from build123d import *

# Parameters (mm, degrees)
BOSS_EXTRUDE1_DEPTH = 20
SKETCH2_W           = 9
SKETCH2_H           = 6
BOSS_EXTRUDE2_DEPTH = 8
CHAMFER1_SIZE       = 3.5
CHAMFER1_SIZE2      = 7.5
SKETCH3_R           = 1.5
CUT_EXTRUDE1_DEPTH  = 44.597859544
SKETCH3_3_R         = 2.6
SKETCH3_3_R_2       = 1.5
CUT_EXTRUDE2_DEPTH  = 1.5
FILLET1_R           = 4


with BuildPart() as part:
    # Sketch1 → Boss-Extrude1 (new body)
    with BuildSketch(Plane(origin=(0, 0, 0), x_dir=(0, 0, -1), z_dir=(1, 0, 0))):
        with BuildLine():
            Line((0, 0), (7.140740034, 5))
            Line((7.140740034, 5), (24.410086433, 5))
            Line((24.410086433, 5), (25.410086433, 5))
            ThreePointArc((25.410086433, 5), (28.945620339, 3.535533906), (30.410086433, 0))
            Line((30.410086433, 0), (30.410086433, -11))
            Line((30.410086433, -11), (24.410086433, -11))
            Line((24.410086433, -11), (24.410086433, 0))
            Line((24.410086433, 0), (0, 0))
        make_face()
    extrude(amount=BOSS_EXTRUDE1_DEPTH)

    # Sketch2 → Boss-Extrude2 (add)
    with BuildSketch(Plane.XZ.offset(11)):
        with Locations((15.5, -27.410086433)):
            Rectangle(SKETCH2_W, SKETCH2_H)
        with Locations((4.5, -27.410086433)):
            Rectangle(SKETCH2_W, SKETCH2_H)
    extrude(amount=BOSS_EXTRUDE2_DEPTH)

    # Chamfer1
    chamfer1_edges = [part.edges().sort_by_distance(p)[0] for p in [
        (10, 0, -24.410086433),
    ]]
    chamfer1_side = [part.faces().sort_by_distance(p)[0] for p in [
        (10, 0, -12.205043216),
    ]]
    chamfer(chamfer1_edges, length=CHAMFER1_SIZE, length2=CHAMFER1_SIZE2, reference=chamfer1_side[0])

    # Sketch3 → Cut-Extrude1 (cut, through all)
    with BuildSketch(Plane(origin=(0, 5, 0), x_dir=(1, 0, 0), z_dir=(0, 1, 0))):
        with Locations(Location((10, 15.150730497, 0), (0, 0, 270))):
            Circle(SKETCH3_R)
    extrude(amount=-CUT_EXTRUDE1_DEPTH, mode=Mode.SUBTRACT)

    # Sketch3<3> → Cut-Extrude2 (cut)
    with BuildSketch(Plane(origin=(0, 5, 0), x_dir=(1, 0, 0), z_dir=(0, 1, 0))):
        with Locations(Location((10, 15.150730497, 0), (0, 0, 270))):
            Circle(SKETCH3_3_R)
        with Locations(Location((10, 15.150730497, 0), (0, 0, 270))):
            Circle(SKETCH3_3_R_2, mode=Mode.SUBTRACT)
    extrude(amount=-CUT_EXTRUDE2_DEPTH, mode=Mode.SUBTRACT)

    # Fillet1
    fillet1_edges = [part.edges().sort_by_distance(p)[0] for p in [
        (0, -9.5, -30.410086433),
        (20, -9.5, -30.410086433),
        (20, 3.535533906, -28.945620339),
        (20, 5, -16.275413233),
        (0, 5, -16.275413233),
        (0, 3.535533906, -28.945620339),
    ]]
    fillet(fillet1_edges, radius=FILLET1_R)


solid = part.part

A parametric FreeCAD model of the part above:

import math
import FreeCAD as App
import Part
import Sketcher

V = App.Vector
Q = App.Units.Quantity


def edges_at(feature, points):
    """Names of the edges that pass closest to the given points."""
    edges = feature.Shape.Edges
    near = lambda p: min(range(len(edges)), key=lambda i: edges[i].distToShape(Part.Vertex(*p))[0])
    return sorted({f"Edge{near(p) + 1}" for p in points})


def add_polygon(sketch, points):
    """Adds a closed chain of lines whose ends are joined by coincident constraints."""
    first, n = sketch.GeometryCount, len(points)
    for a, b in zip(points, points[1:] + points[:1]):
        sketch.addGeometry(Part.LineSegment(App.Vector(*a, 0), App.Vector(*b, 0)), False)
    for i in range(n):
        sketch.addConstraint(Sketcher.Constraint("Coincident", first + i, 2, first + (i + 1) % n, 1))

doc = App.newDocument("Part")
body = doc.addObject("PartDesign::Body", "Body")

sketch1 = doc.addObject("Sketcher::SketchObject", "Sketch")
body.addObject(sketch1)
sketch1.AttachmentSupport = (doc.YZ_Plane, [""])
sketch1.MapMode = "FlatFace"
sketch1.addGeometry(Part.LineSegment(V(5, -7, 0), V(0, 0, 0)), False)
sketch1.addGeometry(Part.LineSegment(V(0, 0, 0), V(0, -24, 0)), False)
sketch1.addGeometry(Part.LineSegment(V(0, -24, 0), V(-11, -24, 0)), False)
sketch1.addGeometry(Part.LineSegment(V(-11, -24, 0), V(-11, -30, 0)), False)
sketch1.addGeometry(Part.LineSegment(V(-11, -30, 0), V(0, -30, 0)), False)
sketch1.addGeometry(Part.ArcOfCircle(Part.Circle(V(0, -25, 0), V(0, 0, 1), 5), math.radians(-90), math.radians(0)), False)
sketch1.addGeometry(Part.LineSegment(V(5, -25, 0), V(5, -7, 0)), False)
sketch1.addConstraint(Sketcher.Constraint("Coincident", 0, 2, 1, 1))
sketch1.addConstraint(Sketcher.Constraint("Coincident", 1, 2, 2, 1))
sketch1.addConstraint(Sketcher.Constraint("Coincident", 2, 2, 3, 1))
sketch1.addConstraint(Sketcher.Constraint("Coincident", 3, 2, 4, 1))
sketch1.addConstraint(Sketcher.Constraint("Tangent", 4, 2, 5, 1))
sketch1.addConstraint(Sketcher.Constraint("Tangent", 5, 2, 6, 1))
sketch1.addConstraint(Sketcher.Constraint("Coincident", 6, 2, 0, 1))
sketch1.addConstraint(Sketcher.Constraint("Vertical", 1))
sketch1.addConstraint(Sketcher.Constraint("Horizontal", 2))
sketch1.addConstraint(Sketcher.Constraint("Vertical", 3))
sketch1.addConstraint(Sketcher.Constraint("Horizontal", 4))
sketch1.addConstraint(Sketcher.Constraint("Vertical", 6))
sketch1.addConstraint(Sketcher.Constraint("Coincident", 0, 2, -1, 1))
sketch1.addConstraint(Sketcher.Constraint("PointOnObject", 5, 3, -2))
sketch1.addConstraint(Sketcher.Constraint("Radius", 5, 5.0))
sketch1.addConstraint(Sketcher.Constraint("DistanceX", 2, 2, 2, 1, 11.0))
sketch1.addConstraint(Sketcher.Constraint("DistanceY", 3, 2, 3, 1, 6.0))
sketch1.addConstraint(Sketcher.Constraint("Angle", 0, Q("125 deg")))
sketch1.addConstraint(Sketcher.Constraint("DistanceY", 1, 2, 1, 1, 24.410086))
pad1 = doc.addObject("PartDesign::Pad", "Pad")
body.addObject(pad1)
pad1.Profile = sketch1
pad1.Length = 20

sketch2 = doc.addObject("Sketcher::SketchObject", "Sketch001")
body.addObject(sketch2)
sketch2.AttachmentSupport = (doc.XZ_Plane, [""])
sketch2.MapMode = "FlatFace"
sketch2.AttachmentOffset = App.Placement(V(0, 0, 11), App.Rotation())
add_polygon(sketch2, [(11, -24), (11, -30), (20, -30), (20, -24)])
add_polygon(sketch2, [(0, -24), (0, -30), (9, -30), (9, -24)])
sketch2.addConstraint(Sketcher.Constraint("Vertical", 0))
sketch2.addConstraint(Sketcher.Constraint("Horizontal", 1))
sketch2.addConstraint(Sketcher.Constraint("Vertical", 2))
sketch2.addConstraint(Sketcher.Constraint("Horizontal", 3))
sketch2.addConstraint(Sketcher.Constraint("Vertical", 4))
sketch2.addConstraint(Sketcher.Constraint("Horizontal", 5))
sketch2.addConstraint(Sketcher.Constraint("Vertical", 6))
sketch2.addConstraint(Sketcher.Constraint("Horizontal", 7))
sketch2.addConstraint(Sketcher.Constraint("PointOnObject", 4, 2, -2))
sketch2.addConstraint(Sketcher.Constraint("Horizontal", 1, 2, 4, 2))
sketch2.addConstraint(Sketcher.Constraint("Horizontal", 3, 2, 6, 2))
sketch2.addConstraint(Sketcher.Constraint("Equal", 3, 5))
sketch2.addConstraint(Sketcher.Constraint("DistanceX", 1, 1, 1, 2, 9.0))
sketch2.addConstraint(Sketcher.Constraint("DistanceY", 0, 2, 0, 1, 6.0))
sketch2.addConstraint(Sketcher.Constraint("DistanceX", -1, 1, 0, 2, 11.0))
sketch2.addConstraint(Sketcher.Constraint("DistanceY", 0, 2, -1, 1, 30.410086))
pad2 = doc.addObject("PartDesign::Pad", "Pad001")
body.addObject(pad2)
pad2.Profile = sketch2
pad2.Length = 8
doc.recompute()

chamfer = doc.addObject("PartDesign::Chamfer", "Chamfer")
body.addObject(chamfer)
chamfer.Base = (pad2, edges_at(pad2, [(10, 0, -24.41)]))
chamfer.ChamferType = "Two distances"
chamfer.Size = 3.5
chamfer.Size2 = 7.5

sketch3 = doc.addObject("Sketcher::SketchObject", "Sketch002")
body.addObject(sketch3)
sketch3.AttachmentSupport = (doc.XZ_Plane, [""])
sketch3.MapMode = "FlatFace"
sketch3.AttachmentOffset = App.Placement(V(0, 0, -5), App.Rotation())
sketch3.addGeometry(Part.Circle(V(10, -15.2, 0), V(0, 0, 1), 1.5), False)
sketch3.addConstraint(Sketcher.Constraint("Diameter", 0, 3.0))
sketch3.addConstraint(Sketcher.Constraint("DistanceX", -1, 1, 0, 3, 10.0))
sketch3.addConstraint(Sketcher.Constraint("DistanceY", 0, 3, -1, 1, 15.15073))
pocket1 = doc.addObject("PartDesign::Pocket", "Pocket")
body.addObject(pocket1)
pocket1.Profile = sketch3
pocket1.Type = "ThroughAll"
pocket1.Reversed = True

sketch4 = doc.addObject("Sketcher::SketchObject", "Sketch003")
body.addObject(sketch4)
sketch4.AttachmentSupport = (doc.XZ_Plane, [""])
sketch4.MapMode = "FlatFace"
sketch4.AttachmentOffset = App.Placement(V(0, 0, -5), App.Rotation())
sketch4.addGeometry(Part.Circle(V(10, -15.2, 0), V(0, 0, 1), 2.6), False)
sketch4.addGeometry(Part.Circle(V(10, -15.2, 0), V(0, 0, 1), 1.5), False)
sketch4.addConstraint(Sketcher.Constraint("Coincident", 1, 3, 0, 3))
sketch4.addConstraint(Sketcher.Constraint("Diameter", 1, 3.0))
sketch4.addConstraint(Sketcher.Constraint("Diameter", 0, 5.2))
sketch4.addConstraint(Sketcher.Constraint("DistanceX", -1, 1, 0, 3, 10.0))
sketch4.addConstraint(Sketcher.Constraint("DistanceY", 0, 3, -1, 1, 15.15073))
pocket2 = doc.addObject("PartDesign::Pocket", "Pocket001")
body.addObject(pocket2)
pocket2.Profile = sketch4
pocket2.Length = 1.5
pocket2.Reversed = True
doc.recompute()

fillet = doc.addObject("PartDesign::Fillet", "Fillet")
body.addObject(fillet)
fillet.Base = (pocket2, edges_at(pocket2, [
    (0, -9.5, -30.41),
    (20, -9.5, -30.41),
    (20, 3.536, -28.946),
    (20, 5, -16.275),
    (0, 5, -16.275),
    (0, 3.536, -28.946),
]))
fillet.Radius = 4

doc.recompute()
